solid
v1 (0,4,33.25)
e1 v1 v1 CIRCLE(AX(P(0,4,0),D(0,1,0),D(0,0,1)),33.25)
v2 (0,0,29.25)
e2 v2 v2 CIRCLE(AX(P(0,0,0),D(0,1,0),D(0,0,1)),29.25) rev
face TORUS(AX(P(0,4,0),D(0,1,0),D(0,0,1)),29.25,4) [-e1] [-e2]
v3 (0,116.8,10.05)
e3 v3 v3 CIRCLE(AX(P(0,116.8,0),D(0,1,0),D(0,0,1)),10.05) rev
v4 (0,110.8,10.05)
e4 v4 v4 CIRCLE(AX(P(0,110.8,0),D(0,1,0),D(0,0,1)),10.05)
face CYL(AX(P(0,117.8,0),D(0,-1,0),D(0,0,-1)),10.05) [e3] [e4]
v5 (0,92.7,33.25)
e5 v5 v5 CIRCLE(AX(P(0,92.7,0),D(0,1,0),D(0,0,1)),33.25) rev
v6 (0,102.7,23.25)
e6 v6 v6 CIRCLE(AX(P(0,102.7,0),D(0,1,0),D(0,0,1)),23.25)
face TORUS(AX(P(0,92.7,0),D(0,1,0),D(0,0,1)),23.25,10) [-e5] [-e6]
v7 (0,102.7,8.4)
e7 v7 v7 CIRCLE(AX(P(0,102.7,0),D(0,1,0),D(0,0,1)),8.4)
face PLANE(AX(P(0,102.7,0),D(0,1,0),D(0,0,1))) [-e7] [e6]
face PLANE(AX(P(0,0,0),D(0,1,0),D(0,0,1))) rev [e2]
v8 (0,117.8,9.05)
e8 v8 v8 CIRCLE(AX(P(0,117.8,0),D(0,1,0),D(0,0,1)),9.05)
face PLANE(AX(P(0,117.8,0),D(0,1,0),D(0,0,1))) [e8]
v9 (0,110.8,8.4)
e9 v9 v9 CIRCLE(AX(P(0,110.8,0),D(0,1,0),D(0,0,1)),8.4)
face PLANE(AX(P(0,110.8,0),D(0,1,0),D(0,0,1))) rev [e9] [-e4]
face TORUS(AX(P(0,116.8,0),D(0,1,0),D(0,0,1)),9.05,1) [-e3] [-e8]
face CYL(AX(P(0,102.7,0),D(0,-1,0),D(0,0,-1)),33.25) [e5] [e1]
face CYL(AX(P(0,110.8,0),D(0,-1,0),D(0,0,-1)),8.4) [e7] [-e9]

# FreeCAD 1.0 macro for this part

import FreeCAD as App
import Part
import Sketcher
from FreeCAD import Vector


def edges_at(feature, points):
    """Names of the edges that pass closest to the given points."""
    edges = feature.Shape.Edges
    near = lambda p: min(range(len(edges)), key=lambda i: edges[i].distToShape(Part.Vertex(*p))[0])
    return sorted({f"Edge{near(p) + 1}" for p in points})

doc = App.newDocument("Part")
body = doc.addObject("PartDesign::Body", "Body")

sketch1 = body.newObject("Sketcher::SketchObject", "Sketch")
sketch1.AttachmentSupport = (doc.getObject("XZ_Plane"), [""])
sketch1.MapMode = "FlatFace"
sketch1.addGeometry(Part.Circle(Vector(0, 0, 0), Vector(0, 0, 1), 33), False)
sketch1.addConstraint([
    Sketcher.Constraint("Coincident", 0, 3, -1, 1),
    Sketcher.Constraint("Diameter", 0, 66.5),
])
pad1 = body.newObject("PartDesign::Pad", "Pad")
pad1.Profile = sketch1
pad1.Length = 102.7
pad1.Reversed = True

sketch2 = body.newObject("Sketcher::SketchObject", "Sketch001")
sketch2.AttachmentSupport = (doc.getObject("XZ_Plane"), [""])
sketch2.MapMode = "FlatFace"
sketch2.AttachmentOffset = App.Placement(Vector(0, 0, -102.7), App.Rotation())
sketch2.addGeometry(Part.Circle(Vector(0, 0, 0), Vector(0, 0, 1), 10), False)
sketch2.addConstraint([
    Sketcher.Constraint("Coincident", 0, 3, -1, 1),
    Sketcher.Constraint("Diameter", 0, 20.1),
])
pad2 = body.newObject("PartDesign::Pad", "Pad001")
pad2.Profile = sketch2
pad2.Length = 15.1
pad2.Reversed = True
doc.recompute()

fillet = body.newObject("PartDesign::Fillet", "Fillet")
fillet.Base = (pad2, edges_at(pad2, [(0, 0, -33.25)]))
fillet.Radius = 4
doc.recompute()

fillet2 = body.newObject("PartDesign::Fillet", "Fillet001")
fillet2.Base = (fillet, edges_at(fillet, [(0, 102.7, -33.25)]))
fillet2.Radius = 10
doc.recompute()

fillet3 = body.newObject("PartDesign::Fillet", "Fillet002")
fillet3.Base = (fillet2, edges_at(fillet2, [(0, 117.8, -10.05)]))
fillet3.Radius = 1

sketch3 = body.newObject("Sketcher::SketchObject", "Sketch002")
sketch3.AttachmentSupport = (doc.getObject("XZ_Plane"), [""])
sketch3.MapMode = "FlatFace"
sketch3.AttachmentOffset = App.Placement(Vector(0, 0, -102.7), App.Rotation())
sketch3.addGeometry([
    Part.Circle(Vector(0, 0, 0), Vector(0, 0, 1), 10),
    Part.Circle(Vector(0, 0, 0), Vector(0, 0, 1), 8),
], False)
sketch3.addConstraint([
    Sketcher.Constraint("Coincident", 0, 3, -1, 1),
    Sketcher.Constraint("Coincident", 1, 3, -1, 1),
    Sketcher.Constraint("Diameter", 0, 20.1),
    Sketcher.Constraint("Diameter", 1, 16.8),
])
pocket1 = body.newObject("PartDesign::Pocket", "Pocket")
pocket1.Profile = sketch3
pocket1.Length = 8.1

doc.recompute()
